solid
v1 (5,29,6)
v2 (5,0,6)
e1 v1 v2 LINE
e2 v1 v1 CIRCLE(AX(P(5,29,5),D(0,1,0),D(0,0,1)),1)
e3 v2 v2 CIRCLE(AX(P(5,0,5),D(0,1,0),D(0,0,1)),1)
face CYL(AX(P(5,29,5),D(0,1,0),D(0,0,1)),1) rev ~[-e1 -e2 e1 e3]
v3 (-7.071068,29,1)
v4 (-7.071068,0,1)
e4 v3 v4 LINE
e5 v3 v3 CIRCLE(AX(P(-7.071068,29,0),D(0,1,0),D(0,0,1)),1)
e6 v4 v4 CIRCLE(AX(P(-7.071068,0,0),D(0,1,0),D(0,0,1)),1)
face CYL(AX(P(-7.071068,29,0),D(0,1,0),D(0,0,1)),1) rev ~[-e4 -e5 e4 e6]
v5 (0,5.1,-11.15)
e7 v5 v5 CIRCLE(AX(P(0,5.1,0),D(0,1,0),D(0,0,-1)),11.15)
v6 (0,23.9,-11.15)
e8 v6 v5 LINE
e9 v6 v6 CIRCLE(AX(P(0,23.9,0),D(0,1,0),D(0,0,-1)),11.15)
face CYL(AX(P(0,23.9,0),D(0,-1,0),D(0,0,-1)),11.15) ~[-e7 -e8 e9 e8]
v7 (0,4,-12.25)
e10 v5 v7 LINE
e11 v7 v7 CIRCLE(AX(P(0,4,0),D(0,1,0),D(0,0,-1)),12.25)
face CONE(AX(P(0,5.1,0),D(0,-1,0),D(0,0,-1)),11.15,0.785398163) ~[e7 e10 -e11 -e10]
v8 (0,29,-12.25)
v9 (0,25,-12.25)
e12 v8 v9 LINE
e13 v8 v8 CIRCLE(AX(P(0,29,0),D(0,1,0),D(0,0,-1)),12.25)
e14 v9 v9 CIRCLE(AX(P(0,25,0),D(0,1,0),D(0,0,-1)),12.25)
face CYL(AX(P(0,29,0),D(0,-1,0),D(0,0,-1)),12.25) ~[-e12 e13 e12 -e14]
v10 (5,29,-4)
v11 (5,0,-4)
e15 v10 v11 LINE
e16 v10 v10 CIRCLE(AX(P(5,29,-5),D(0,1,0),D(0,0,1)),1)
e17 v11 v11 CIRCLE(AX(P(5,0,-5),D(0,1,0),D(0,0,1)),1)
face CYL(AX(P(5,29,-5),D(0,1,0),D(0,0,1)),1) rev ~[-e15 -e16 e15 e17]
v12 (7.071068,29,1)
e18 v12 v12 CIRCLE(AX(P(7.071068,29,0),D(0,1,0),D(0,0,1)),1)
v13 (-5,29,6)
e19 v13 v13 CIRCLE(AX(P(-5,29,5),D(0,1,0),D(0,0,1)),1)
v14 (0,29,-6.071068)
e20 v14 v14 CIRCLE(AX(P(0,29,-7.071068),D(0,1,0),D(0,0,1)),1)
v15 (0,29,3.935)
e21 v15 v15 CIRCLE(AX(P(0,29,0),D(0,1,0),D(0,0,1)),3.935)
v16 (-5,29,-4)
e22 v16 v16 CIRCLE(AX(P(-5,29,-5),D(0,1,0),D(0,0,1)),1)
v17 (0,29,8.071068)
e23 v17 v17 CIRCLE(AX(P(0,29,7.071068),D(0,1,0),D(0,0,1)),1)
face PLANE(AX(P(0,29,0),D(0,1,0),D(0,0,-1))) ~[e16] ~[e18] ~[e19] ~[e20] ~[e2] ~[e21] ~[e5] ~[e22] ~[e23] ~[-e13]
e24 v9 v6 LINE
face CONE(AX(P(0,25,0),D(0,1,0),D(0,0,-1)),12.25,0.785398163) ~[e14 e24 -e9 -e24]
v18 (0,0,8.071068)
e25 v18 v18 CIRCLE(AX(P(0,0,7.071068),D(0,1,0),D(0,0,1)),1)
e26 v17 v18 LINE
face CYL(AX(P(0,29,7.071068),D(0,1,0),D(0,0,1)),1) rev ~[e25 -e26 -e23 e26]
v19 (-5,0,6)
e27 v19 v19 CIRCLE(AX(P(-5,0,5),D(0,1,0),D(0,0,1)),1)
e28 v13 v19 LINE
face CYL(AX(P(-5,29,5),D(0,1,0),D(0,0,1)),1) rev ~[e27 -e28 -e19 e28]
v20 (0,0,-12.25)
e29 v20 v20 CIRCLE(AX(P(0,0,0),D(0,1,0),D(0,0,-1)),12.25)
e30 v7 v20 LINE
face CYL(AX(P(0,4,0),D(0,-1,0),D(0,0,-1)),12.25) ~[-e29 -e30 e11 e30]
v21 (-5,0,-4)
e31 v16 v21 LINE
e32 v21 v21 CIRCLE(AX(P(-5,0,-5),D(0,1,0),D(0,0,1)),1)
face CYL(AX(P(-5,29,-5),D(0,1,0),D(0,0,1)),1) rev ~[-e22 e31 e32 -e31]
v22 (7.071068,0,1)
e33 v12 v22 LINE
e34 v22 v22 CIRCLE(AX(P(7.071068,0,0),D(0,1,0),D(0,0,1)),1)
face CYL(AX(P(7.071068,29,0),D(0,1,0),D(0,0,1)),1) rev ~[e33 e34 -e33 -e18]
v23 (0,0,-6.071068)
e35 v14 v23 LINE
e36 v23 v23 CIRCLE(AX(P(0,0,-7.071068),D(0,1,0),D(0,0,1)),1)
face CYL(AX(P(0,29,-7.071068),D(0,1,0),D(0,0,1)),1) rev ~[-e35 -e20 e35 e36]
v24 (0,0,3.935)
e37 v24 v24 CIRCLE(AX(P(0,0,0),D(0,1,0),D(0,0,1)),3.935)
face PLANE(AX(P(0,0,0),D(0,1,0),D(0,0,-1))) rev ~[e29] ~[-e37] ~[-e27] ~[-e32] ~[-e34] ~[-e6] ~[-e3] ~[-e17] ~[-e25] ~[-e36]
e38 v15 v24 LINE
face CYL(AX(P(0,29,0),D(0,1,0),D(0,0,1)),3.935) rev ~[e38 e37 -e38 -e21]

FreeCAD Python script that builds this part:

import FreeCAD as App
import Part
import Sketcher

V = App.Vector
Q = App.Units.Quantity


def add_polygon(sketch, points):
    """Adds a closed chain of lines whose ends are joined by coincident constraints."""
    first, n = sketch.GeometryCount, len(points)
    for a, b in zip(points, points[1:] + points[:1]):
        sketch.addGeometry(Part.LineSegment(App.Vector(*a, 0), App.Vector(*b, 0)), False)
    for i in range(n):
        sketch.addConstraint(Sketcher.Constraint("Coincident", first + i, 2, first + (i + 1) % n, 1))

doc = App.newDocument("Part")
body = doc.addObject("PartDesign::Body", "Body")

sketch1 = body.newObject("Sketcher::SketchObject", "Sketch")
sketch1.AttachmentSupport = (doc.getObject("XY_Plane"), [""])
sketch1.MapMode = "FlatFace"
add_polygon(sketch1, [(-3, 0), (-3, 29), (-12.2, 29), (-12.2, 25), (-11.2, 23.9), (-11.2, 5.1), (-12.2, 4), (-12.2, 0)])
sketch1.addConstraint([
    Sketcher.Constraint("Vertical", 0),
    Sketcher.Constraint("Horizontal", 1),
    Sketcher.Constraint("Vertical", 2),
    Sketcher.Constraint("Vertical", 4),
    Sketcher.Constraint("Vertical", 6),
    Sketcher.Constraint("Horizontal", 7),
    Sketcher.Constraint("PointOnObject", 6, 2, -1),
    Sketcher.Constraint("Perpendicular", 3, 5),
    Sketcher.Constraint("Vertical", 2, 2, 5, 2),
    Sketcher.Constraint("Equal", 2, 6),
    Sketcher.Constraint("Equal", 3, 5),
    Sketcher.Constraint("DistanceY", 0, 1, 0, 2, Q("29 mm")),
    Sketcher.Constraint("DistanceY", 2, 2, 2, 1, Q("4 mm")),
    Sketcher.Constraint("DistanceY", 4, 2, 4, 1, Q("18.8 mm")),
    Sketcher.Constraint("DistanceX", 0, 2, -1, 1, Q("3 mm")),
    Sketcher.Constraint("DistanceX", 1, 2, 1, 1, Q("9.25 mm")),
])
revolution = body.newObject("PartDesign::Revolution", "Revolution")
revolution.Profile = sketch1
revolution.ReferenceAxis = (sketch1, ["V_Axis"])
revolution.Angle = 360

sketch2 = body.newObject("Sketcher::SketchObject", "Sketch001")
sketch2.AttachmentSupport = (doc.getObject("XZ_Plane"), [""])
sketch2.MapMode = "FlatFace"
sketch2.AttachmentOffset = App.Placement(V(0, 0, -29), App.Rotation())
sketch2.addGeometry([
    Part.Circle(V(0, 0, 0), V(0, 0, 1), 3.9),
    Part.Circle(V(-5, -5, 0), V(0, 0, 1), 1),
    Part.Circle(V(5, -5, 0), V(0, 0, 1), 1),
    Part.Circle(V(5, 5, 0), V(0, 0, 1), 1),
    Part.Circle(V(-5, 5, 0), V(0, 0, 1), 1),
    Part.Circle(V(-7.1, 0, 0), V(0, 0, 1), 1),
    Part.Circle(V(0, -7.1, 0), V(0, 0, 1), 1),
    Part.Circle(V(7.1, 0, 0), V(0, 0, 1), 1),
    Part.Circle(V(0, 7.1, 0), V(0, 0, 1), 1),
], False)
sketch2.addConstraint([
    Sketcher.Constraint("Coincident", 0, 3, -1, 1),
    Sketcher.Constraint("Equal", 1, 2),
    Sketcher.Constraint("Equal", 2, 3),
    Sketcher.Constraint("Equal", 3, 4),
    Sketcher.Constraint("Equal", 4, 5),
    Sketcher.Constraint("Equal", 5, 6),
    Sketcher.Constraint("Equal", 6, 7),
    Sketcher.Constraint("Equal", 7, 8),
    Sketcher.Constraint("Symmetric", 1, 3, 3, 3, -1, 1),
    Sketcher.Constraint("Symmetric", 2, 3, 4, 3, -1, 1),
    Sketcher.Constraint("Symmetric", 5, 3, 7, 3, -1, 1),
    Sketcher.Constraint("Symmetric", 6, 3, 8, 3, -1, 1),
    Sketcher.Constraint("Symmetric", 1, 3, 2, 3, -2),
    Sketcher.Constraint("PointOnObject", 5, 3, -1),
    Sketcher.Constraint("PointOnObject", 6, 3, -2),
    Sketcher.Constraint("Diameter", 1, Q("2 mm")),
    Sketcher.Constraint("Diameter", 0, Q("7.87 mm")),
    Sketcher.Constraint("DistanceX", 1, 3, -1, 1, Q("5 mm")),
    Sketcher.Constraint("DistanceY", 1, 3, -1, 1, Q("5 mm")),
    Sketcher.Constraint("DistanceX", 5, 3, -1, 1, Q("7.071068 mm")),
    Sketcher.Constraint("DistanceY", 6, 3, -1, 1, Q("7.071068 mm")),
])
pocket1 = body.newObject("PartDesign::Pocket", "Pocket")
pocket1.Profile = sketch2
pocket1.Length = 45
pocket1.Reversed = True

doc.recompute()
